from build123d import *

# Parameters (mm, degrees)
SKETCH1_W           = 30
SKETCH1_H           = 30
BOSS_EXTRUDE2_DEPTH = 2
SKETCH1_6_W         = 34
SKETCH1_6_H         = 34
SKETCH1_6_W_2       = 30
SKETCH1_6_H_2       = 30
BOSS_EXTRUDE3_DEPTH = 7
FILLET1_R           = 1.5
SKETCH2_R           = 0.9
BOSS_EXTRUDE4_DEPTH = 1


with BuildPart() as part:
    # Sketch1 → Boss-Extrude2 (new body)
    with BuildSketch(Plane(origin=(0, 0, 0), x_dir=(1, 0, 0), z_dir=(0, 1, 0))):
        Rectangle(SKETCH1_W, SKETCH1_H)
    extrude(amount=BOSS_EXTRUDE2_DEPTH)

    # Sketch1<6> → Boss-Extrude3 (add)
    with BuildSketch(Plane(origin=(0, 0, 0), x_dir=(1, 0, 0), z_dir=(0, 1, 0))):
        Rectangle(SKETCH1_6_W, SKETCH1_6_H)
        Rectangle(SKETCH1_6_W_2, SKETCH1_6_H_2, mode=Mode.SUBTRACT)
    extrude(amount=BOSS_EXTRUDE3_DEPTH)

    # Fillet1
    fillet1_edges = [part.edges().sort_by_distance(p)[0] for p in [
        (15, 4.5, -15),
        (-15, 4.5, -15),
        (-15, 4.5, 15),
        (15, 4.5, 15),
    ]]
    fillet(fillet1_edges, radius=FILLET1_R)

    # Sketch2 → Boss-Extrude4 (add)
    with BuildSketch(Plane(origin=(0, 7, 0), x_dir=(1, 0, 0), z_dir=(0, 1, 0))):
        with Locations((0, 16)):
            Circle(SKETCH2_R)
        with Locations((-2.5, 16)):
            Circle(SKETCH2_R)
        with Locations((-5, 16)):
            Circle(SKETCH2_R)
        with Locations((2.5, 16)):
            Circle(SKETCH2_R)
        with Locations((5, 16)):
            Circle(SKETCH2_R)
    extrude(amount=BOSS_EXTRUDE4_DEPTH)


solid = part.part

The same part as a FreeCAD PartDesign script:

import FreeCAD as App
import Part
import Sketcher
Q = App.Units.Quantity


def edges_at(feature, points):
    """Names of the edges that pass closest to the given points."""
    edges = feature.Shape.Edges
    near = lambda p: min(range(len(edges)), key=lambda i: edges[i].distToShape(Part.Vertex(*p))[0])
    return sorted({f"Edge{near(p) + 1}" for p in points})

doc = App.newDocument("Part")
params = doc.addObject("Spreadsheet::Sheet", "Params")
for row, (alias, value) in enumerate([
    ("sketch1_width", "30 mm"),
    ("pad1_length", "2 mm"),
    ("sketch2_width", "34 mm"),
    ("sketch2_width2", "30 mm"),
    ("pad2_length", "7 mm"),
    ("fillet_radius", "1.5 mm"),
    ("sketch3_diameter", "1.8 mm"),
    ("pad3_length", "1 mm"),
], start=1):
    params.set(f"A{row}", alias)
    params.set(f"B{row}", "=" + value)
    params.setAlias(f"B{row}", alias)

body = doc.addObject("PartDesign::Body", "Body")

# Sketch on XZ plane
sketch1 = body.newObject("Sketcher::SketchObject", "Sketch")
sketch1.AttachmentSupport = (doc.getObject("XZ_Plane"), [""])
sketch1.MapMode = "FlatFace"
sketch1.addGeometry(Part.LineSegment(App.Vector(-15, -15, 0), App.Vector(-15, 15, 0)), False)
sketch1.addGeometry(Part.LineSegment(App.Vector(-15, 15, 0), App.Vector(15, 15, 0)), False)
sketch1.addGeometry(Part.LineSegment(App.Vector(15, 15, 0), App.Vector(15, -15, 0)), False)
sketch1.addGeometry(Part.LineSegment(App.Vector(15, -15, 0), App.Vector(-15, -15, 0)), False)
sketch1.addConstraint(Sketcher.Constraint("Coincident", 0, 2, 1, 1))
sketch1.addConstraint(Sketcher.Constraint("Coincident", 1, 2, 2, 1))
sketch1.addConstraint(Sketcher.Constraint("Coincident", 2, 2, 3, 1))
sketch1.addConstraint(Sketcher.Constraint("Coincident", 3, 2, 0, 1))
sketch1.addConstraint(Sketcher.Constraint("Vertical", 0))
sketch1.addConstraint(Sketcher.Constraint("Horizontal", 1))
sketch1.addConstraint(Sketcher.Constraint("Vertical", 2))
sketch1.addConstraint(Sketcher.Constraint("Horizontal", 3))
sketch1.addConstraint(Sketcher.Constraint("Symmetric", 0, 2, 2, 2, -1, 1))
sketch1.addConstraint(Sketcher.Constraint("Equal", 3, 0))
sketch1.addConstraint(Sketcher.Constraint("DistanceX", 1, 1, 1, 2, Q("30 mm")))
sketch1.setExpression("Constraints[10]", "Params.sketch1_width")
pad1 = body.newObject("PartDesign::Pad", "Pad")
pad1.Profile = sketch1
pad1.setExpression("Length", "Params.pad1_length")
pad1.Reversed = True

# Sketch on XZ plane
sketch2 = body.newObject("Sketcher::SketchObject", "Sketch001")
sketch2.AttachmentSupport = (doc.getObject("XZ_Plane"), [""])
sketch2.MapMode = "FlatFace"
sketch2.addGeometry(Part.LineSegment(App.Vector(-17, -17, 0), App.Vector(-17, 17, 0)), False)
sketch2.addGeometry(Part.LineSegment(App.Vector(-17, 17, 0), App.Vector(17, 17, 0)), False)
sketch2.addGeometry(Part.LineSegment(App.Vector(17, 17, 0), App.Vector(17, -17, 0)), False)
sketch2.addGeometry(Part.LineSegment(App.Vector(17, -17, 0), App.Vector(-17, -17, 0)), False)
sketch2.addGeometry(Part.LineSegment(App.Vector(15, 15, 0), App.Vector(-15, 15, 0)), False)
sketch2.addGeometry(Part.LineSegment(App.Vector(-15, 15, 0), App.Vector(-15, -15, 0)), False)
sketch2.addGeometry(Part.LineSegment(App.Vector(-15, -15, 0), App.Vector(15, -15, 0)), False)
sketch2.addGeometry(Part.LineSegment(App.Vector(15, -15, 0), App.Vector(15, 15, 0)), False)
sketch2.addConstraint(Sketcher.Constraint("Coincident", 0, 2, 1, 1))
sketch2.addConstraint(Sketcher.Constraint("Coincident", 1, 2, 2, 1))
sketch2.addConstraint(Sketcher.Constraint("Coincident", 2, 2, 3, 1))
sketch2.addConstraint(Sketcher.Constraint("Coincident", 3, 2, 0, 1))
sketch2.addConstraint(Sketcher.Constraint("Coincident", 4, 2, 5, 1))
sketch2.addConstraint(Sketcher.Constraint("Coincident", 5, 2, 6, 1))
sketch2.addConstraint(Sketcher.Constraint("Coincident", 6, 2, 7, 1))
sketch2.addConstraint(Sketcher.Constraint("Coincident", 7, 2, 4, 1))
sketch2.addConstraint(Sketcher.Constraint("Vertical", 0))
sketch2.addConstraint(Sketcher.Constraint("Horizontal", 1))
sketch2.addConstraint(Sketcher.Constraint("Vertical", 2))
sketch2.addConstraint(Sketcher.Constraint("Horizontal", 3))
sketch2.addConstraint(Sketcher.Constraint("Horizontal", 4))
sketch2.addConstraint(Sketcher.Constraint("Vertical", 5))
sketch2.addConstraint(Sketcher.Constraint("Horizontal", 6))
sketch2.addConstraint(Sketcher.Constraint("Vertical", 7))
sketch2.addConstraint(Sketcher.Constraint("Symmetric", 0, 2, 2, 2, -1, 1))
sketch2.addConstraint(Sketcher.Constraint("Symmetric", 4, 2, 6, 2, -1, 1))
sketch2.addConstraint(Sketcher.Constraint("Equal", 3, 0))
sketch2.addConstraint(Sketcher.Constraint("Equal", 6, 5))
sketch2.addConstraint(Sketcher.Constraint("DistanceX", 1, 1, 1, 2, Q("34 mm")))
sketch2.addConstraint(Sketcher.Constraint("DistanceX", 4, 2, 4, 1, Q("30 mm")))
sketch2.setExpression("Constraints[20]", "Params.sketch2_width")
sketch2.setExpression("Constraints[21]", "Params.sketch2_width2")
pad2 = body.newObject("PartDesign::Pad", "Pad001")
pad2.Profile = sketch2
pad2.setExpression("Length", "Params.pad2_length")
pad2.Reversed = True
doc.recompute()

fillet = body.newObject("PartDesign::Fillet", "Fillet")
fillet.Base = (pad2, edges_at(pad2, [
    (15, 4.5, -15),
    (-15, 4.5, -15),
    (-15, 4.5, 15),
    (15, 4.5, 15),
]))
fillet.setExpression("Radius", "Params.fillet_radius")

# Sketch on XZ plane
sketch3 = body.newObject("Sketcher::SketchObject", "Sketch002")
sketch3.AttachmentSupport = (doc.getObject("XZ_Plane"), [""])
sketch3.MapMode = "FlatFace"
sketch3.AttachmentOffset = App.Placement(App.Vector(0, 0, -7), App.Rotation())
sketch3.addGeometry(Part.Circle(App.Vector(0, -16, 0), App.Vector(0, 0, 1), 0.9), False)
sketch3.addGeometry(Part.Circle(App.Vector(-2.5, -16, 0), App.Vector(0, 0, 1), 0.9), False)
sketch3.addGeometry(Part.Circle(App.Vector(-5, -16, 0), App.Vector(0, 0, 1), 0.9), False)
sketch3.addGeometry(Part.Circle(App.Vector(2.5, -16, 0), App.Vector(0, 0, 1), 0.9), False)
sketch3.addGeometry(Part.Circle(App.Vector(5, -16, 0), App.Vector(0, 0, 1), 0.9), False)
sketch3.addConstraint(Sketcher.Constraint("Equal", 0, 1))
sketch3.addConstraint(Sketcher.Constraint("Equal", 1, 2))
sketch3.addConstraint(Sketcher.Constraint("Equal", 2, 3))
sketch3.addConstraint(Sketcher.Constraint("Equal", 3, 4))
sketch3.addConstraint(Sketcher.Constraint("Symmetric", 1, 3, 3, 3, -2))
sketch3.addConstraint(Sketcher.Constraint("Symmetric", 2, 3, 4, 3, -2))
sketch3.addConstraint(Sketcher.Constraint("PointOnObject", 0, 3, -2))
sketch3.addConstraint(Sketcher.Constraint("Horizontal", 0, 3, 1, 3))
sketch3.addConstraint(Sketcher.Constraint("Horizontal", 1, 3, 2, 3))
sketch3.addConstraint(Sketcher.Constraint("Diameter", 0, Q("1.8 mm")))
sketch3.addConstraint(Sketcher.Constraint("DistanceY", 0, 3, -1, 1, Q("16 mm")))
sketch3.addConstraint(Sketcher.Constraint("DistanceX", 2, 3, -1, 1, Q("5 mm")))
sketch3.addConstraint(Sketcher.Constraint("DistanceX", 1, 3, 3, 3, Q("5 mm")))
sketch3.setExpression("Constraints[9]", "Params.sketch3_diameter")
pad3 = body.newObject("PartDesign::Pad", "Pad002")
pad3.Profile = sketch3
pad3.setExpression("Length", "Params.pad3_length")
pad3.Reversed = True

doc.recompute()
